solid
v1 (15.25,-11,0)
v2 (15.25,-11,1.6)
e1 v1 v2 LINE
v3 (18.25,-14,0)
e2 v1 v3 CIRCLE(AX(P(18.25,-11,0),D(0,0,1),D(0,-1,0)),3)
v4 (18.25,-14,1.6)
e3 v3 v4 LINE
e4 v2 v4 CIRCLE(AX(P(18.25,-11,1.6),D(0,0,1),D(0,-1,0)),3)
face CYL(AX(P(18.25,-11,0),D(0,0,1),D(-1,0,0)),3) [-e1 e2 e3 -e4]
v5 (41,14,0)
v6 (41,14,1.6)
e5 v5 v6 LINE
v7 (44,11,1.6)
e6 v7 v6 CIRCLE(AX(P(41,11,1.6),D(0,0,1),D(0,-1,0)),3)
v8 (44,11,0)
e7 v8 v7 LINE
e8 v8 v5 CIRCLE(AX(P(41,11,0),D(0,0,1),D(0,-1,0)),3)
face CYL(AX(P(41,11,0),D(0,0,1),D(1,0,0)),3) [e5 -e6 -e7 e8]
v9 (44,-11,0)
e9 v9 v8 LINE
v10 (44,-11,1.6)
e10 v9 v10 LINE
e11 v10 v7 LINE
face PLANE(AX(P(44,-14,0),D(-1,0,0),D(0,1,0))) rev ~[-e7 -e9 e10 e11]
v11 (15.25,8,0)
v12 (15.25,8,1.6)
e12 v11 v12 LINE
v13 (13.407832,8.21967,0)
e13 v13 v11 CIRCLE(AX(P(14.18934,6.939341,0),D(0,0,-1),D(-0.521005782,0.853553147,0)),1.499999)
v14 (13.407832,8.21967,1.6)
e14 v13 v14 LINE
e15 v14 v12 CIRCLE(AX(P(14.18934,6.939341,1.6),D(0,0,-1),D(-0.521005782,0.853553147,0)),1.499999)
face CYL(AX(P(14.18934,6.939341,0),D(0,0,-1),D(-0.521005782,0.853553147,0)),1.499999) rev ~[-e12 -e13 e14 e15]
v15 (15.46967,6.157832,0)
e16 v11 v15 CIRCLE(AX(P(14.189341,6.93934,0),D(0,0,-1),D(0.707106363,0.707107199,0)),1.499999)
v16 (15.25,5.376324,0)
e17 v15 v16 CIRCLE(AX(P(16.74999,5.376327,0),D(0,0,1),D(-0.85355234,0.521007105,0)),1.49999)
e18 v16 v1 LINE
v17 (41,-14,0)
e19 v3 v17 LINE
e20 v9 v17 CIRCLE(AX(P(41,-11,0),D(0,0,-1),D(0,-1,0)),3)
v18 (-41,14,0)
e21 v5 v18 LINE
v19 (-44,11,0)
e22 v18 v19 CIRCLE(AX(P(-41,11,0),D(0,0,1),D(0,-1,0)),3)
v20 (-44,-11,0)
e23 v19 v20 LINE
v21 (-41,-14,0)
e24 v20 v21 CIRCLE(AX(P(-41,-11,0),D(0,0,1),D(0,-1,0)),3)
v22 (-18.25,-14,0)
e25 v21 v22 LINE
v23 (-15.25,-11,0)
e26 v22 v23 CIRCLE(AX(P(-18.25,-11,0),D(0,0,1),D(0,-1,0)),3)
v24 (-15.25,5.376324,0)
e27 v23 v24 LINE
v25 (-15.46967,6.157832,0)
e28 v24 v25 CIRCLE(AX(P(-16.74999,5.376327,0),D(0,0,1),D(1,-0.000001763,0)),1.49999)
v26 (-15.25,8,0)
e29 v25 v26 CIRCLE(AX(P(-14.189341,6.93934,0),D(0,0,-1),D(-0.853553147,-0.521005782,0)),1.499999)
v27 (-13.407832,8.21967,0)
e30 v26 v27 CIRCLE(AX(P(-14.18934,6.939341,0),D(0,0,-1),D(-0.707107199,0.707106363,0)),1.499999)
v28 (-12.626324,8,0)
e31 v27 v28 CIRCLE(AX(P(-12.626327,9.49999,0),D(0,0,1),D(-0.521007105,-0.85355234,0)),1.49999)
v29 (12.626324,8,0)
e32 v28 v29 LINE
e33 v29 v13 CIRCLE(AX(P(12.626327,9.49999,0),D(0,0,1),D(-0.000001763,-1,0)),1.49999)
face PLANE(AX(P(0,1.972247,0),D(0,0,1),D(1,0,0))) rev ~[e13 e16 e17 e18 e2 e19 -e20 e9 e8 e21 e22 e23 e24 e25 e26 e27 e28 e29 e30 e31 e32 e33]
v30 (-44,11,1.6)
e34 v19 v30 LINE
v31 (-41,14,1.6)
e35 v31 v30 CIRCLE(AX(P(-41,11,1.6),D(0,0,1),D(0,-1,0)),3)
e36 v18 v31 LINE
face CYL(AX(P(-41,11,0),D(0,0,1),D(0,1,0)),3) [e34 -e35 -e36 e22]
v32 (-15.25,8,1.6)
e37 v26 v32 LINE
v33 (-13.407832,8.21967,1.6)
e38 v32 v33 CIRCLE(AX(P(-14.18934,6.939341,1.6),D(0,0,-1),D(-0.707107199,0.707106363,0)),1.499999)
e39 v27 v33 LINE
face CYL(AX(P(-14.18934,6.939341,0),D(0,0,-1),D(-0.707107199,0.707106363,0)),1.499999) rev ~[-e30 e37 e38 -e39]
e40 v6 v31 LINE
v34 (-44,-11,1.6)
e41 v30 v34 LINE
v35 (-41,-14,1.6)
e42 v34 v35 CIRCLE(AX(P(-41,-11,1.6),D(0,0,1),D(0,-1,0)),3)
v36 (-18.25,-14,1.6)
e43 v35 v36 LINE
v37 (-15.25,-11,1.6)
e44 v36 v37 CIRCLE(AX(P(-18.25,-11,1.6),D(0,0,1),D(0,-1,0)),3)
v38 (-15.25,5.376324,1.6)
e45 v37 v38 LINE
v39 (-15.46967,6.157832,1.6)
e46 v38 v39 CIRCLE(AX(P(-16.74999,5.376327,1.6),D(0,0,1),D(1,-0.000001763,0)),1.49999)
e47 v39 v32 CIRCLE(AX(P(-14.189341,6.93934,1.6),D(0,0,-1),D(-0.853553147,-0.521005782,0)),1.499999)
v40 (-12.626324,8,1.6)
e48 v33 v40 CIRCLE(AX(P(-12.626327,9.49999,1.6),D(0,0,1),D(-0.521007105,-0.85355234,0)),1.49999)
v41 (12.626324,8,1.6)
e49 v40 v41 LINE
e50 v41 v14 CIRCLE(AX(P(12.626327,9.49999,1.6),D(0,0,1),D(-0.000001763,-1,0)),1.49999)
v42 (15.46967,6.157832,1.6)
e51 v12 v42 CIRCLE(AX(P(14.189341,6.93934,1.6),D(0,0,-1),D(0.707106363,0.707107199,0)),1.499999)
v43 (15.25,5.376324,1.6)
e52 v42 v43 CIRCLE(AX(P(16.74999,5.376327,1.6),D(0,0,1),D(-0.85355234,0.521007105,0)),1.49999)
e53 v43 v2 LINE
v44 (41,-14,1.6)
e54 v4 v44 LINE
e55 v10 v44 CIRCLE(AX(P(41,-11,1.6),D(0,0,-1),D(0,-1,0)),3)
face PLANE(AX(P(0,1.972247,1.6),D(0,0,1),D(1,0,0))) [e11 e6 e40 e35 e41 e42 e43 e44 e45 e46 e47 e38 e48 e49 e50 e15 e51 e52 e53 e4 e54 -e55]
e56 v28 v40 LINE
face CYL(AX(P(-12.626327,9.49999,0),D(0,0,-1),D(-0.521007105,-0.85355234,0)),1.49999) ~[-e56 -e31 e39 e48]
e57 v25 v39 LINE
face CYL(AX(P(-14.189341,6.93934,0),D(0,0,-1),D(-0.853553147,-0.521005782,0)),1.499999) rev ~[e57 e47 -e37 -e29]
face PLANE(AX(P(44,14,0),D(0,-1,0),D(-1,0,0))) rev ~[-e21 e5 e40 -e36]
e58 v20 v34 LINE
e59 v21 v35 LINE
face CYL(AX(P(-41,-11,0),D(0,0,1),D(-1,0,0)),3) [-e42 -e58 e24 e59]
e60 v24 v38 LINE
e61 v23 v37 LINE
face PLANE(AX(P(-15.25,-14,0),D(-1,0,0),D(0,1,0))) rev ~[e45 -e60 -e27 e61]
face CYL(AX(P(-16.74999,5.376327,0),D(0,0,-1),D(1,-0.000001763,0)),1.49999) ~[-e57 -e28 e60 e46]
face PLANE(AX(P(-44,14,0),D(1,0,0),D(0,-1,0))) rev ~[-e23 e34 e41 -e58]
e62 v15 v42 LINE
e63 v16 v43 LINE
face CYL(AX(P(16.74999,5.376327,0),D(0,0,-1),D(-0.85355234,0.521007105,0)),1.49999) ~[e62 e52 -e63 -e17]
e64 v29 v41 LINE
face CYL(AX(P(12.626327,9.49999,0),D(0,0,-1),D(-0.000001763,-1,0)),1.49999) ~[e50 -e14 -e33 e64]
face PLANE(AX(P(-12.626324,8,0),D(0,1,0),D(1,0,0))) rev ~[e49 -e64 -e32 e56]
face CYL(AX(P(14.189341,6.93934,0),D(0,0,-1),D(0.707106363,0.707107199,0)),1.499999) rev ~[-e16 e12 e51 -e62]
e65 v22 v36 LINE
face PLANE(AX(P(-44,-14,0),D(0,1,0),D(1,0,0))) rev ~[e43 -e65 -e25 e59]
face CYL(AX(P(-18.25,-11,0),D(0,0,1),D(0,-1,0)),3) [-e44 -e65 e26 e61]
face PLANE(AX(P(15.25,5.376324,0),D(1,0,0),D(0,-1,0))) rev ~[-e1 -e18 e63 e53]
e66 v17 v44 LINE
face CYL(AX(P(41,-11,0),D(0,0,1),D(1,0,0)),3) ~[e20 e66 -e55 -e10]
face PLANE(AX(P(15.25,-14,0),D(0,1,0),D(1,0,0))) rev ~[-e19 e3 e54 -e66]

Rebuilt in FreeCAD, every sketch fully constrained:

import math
import FreeCAD as App
import Part
import Sketcher

V = App.Vector


def edges_at(feature, points):
    """Names of the edges that pass closest to the given points."""
    edges = feature.Shape.Edges
    near = lambda p: min(range(len(edges)), key=lambda i: edges[i].distToShape(Part.Vertex(*p))[0])
    return sorted({f"Edge{near(p) + 1}" for p in points})

doc = App.newDocument("Part")
body = doc.addObject("PartDesign::Body", "Body")

# Sketch on XY plane
sketch1 = body.newObject("Sketcher::SketchObject", "Sketch")
sketch1.AttachmentSupport = (doc.getObject("XY_Plane"), [""])
sketch1.MapMode = "FlatFace"
sketch1.addGeometry(Part.LineSegment(V(44, -14, 0), V(44, 14, 0)), False)
sketch1.addGeometry(Part.LineSegment(V(44, 14, 0), V(-44, 14, 0)), False)
sketch1.addGeometry(Part.LineSegment(V(-44, 14, 0), V(-44, -14, 0)), False)
sketch1.addGeometry(Part.LineSegment(V(-44, -14, 0), V(-15.2, -14, 0)), False)
sketch1.addGeometry(Part.LineSegment(V(-15.2, -14, 0), V(-15.2, 5.4, 0)), False)
sketch1.addGeometry(Part.ArcOfCircle(Part.Circle(V(-16.7, 5.4, 0), V(0, 0, 1), 1.5), math.radians(0), math.radians(31)), False)
sketch1.addGeometry(Part.ArcOfCircle(Part.Circle(V(-14.2, 6.9, 0), V(0, 0, 1), 1.5), math.radians(135), math.radians(211)), False)
sketch1.addGeometry(Part.ArcOfCircle(Part.Circle(V(-14.2, 6.9, 0), V(0, 0, 1), 1.5), math.radians(59), math.radians(135)), False)
sketch1.addGeometry(Part.ArcOfCircle(Part.Circle(V(-12.6, 9.5, 0), V(0, 0, 1), 1.5), math.radians(-121), math.radians(-90)), False)
sketch1.addGeometry(Part.LineSegment(V(-12.6, 8, 0), V(12.6, 8, 0)), False)
sketch1.addGeometry(Part.ArcOfCircle(Part.Circle(V(12.6, 9.5, 0), V(0, 0, 1), 1.5), math.radians(-90), math.radians(-59)), False)
sketch1.addGeometry(Part.ArcOfCircle(Part.Circle(V(14.2, 6.9, 0), V(0, 0, 1), 1.5), math.radians(45), math.radians(121)), False)
sketch1.addGeometry(Part.ArcOfCircle(Part.Circle(V(14.2, 6.9, 0), V(0, 0, 1), 1.5), math.radians(-31), math.radians(45)), False)
sketch1.addGeometry(Part.ArcOfCircle(Part.Circle(V(16.7, 5.4, 0), V(0, 0, 1), 1.5), math.radians(149), math.radians(180)), False)
sketch1.addGeometry(Part.LineSegment(V(15.2, 5.4, 0), V(15.2, -14, 0)), False)
sketch1.addGeometry(Part.LineSegment(V(15.2, -14, 0), V(44, -14, 0)), False)
sketch1.addConstraint(Sketcher.Constraint("Coincident", 0, 2, 1, 1))
sketch1.addConstraint(Sketcher.Constraint("Coincident", 1, 2, 2, 1))
sketch1.addConstraint(Sketcher.Constraint("Coincident", 2, 2, 3, 1))
sketch1.addConstraint(Sketcher.Constraint("Coincident", 3, 2, 4, 1))
sketch1.addConstraint(Sketcher.Constraint("Tangent", 4, 2, 5, 1))
sketch1.addConstraint(Sketcher.Constraint("Tangent", 5, 2, 6, 2))
sketch1.addConstraint(Sketcher.Constraint("Tangent", 6, 1, 7, 2))
sketch1.addConstraint(Sketcher.Constraint("Tangent", 7, 1, 8, 1))
sketch1.addConstraint(Sketcher.Constraint("Tangent", 8, 2, 9, 1))
sketch1.addConstraint(Sketcher.Constraint("Tangent", 9, 2, 10, 1))
sketch1.addConstraint(Sketcher.Constraint("Tangent", 10, 2, 11, 2))
sketch1.addConstraint(Sketcher.Constraint("Tangent", 11, 1, 12, 2))
sketch1.addConstraint(Sketcher.Constraint("Tangent", 12, 1, 13, 1))
sketch1.addConstraint(Sketcher.Constraint("Tangent", 13, 2, 14, 1))
sketch1.addConstraint(Sketcher.Constraint("Coincident", 14, 2, 15, 1))
sketch1.addConstraint(Sketcher.Constraint("Coincident", 15, 2, 0, 1))
sketch1.addConstraint(Sketcher.Constraint("Vertical", 0))
sketch1.addConstraint(Sketcher.Constraint("Horizontal", 1))
sketch1.addConstraint(Sketcher.Constraint("Vertical", 2))
sketch1.addConstraint(Sketcher.Constraint("Horizontal", 3))
sketch1.addConstraint(Sketcher.Constraint("Vertical", 4))
sketch1.addConstraint(Sketcher.Constraint("Horizontal", 9))
sketch1.addConstraint(Sketcher.Constraint("Vertical", 14))
sketch1.addConstraint(Sketcher.Constraint("Horizontal", 15))
sketch1.addConstraint(Sketcher.Constraint("Equal", 6, 7))
sketch1.addConstraint(Sketcher.Constraint("Equal", 5, 8))
sketch1.addConstraint(Sketcher.Constraint("Equal", 8, 10))
sketch1.addConstraint(Sketcher.Constraint("Equal", 7, 11))
sketch1.addConstraint(Sketcher.Constraint("Equal", 11, 12))
sketch1.addConstraint(Sketcher.Constraint("Equal", 10, 13))
sketch1.addConstraint(Sketcher.Constraint("Symmetric", 0, 2, 2, 2, -1, 1))
sketch1.addConstraint(Sketcher.Constraint("Symmetric", 6, 3, 11, 3, -2))
sketch1.addConstraint(Sketcher.Constraint("Symmetric", 3, 2, 14, 2, -2))
sketch1.addConstraint(Sketcher.Constraint("Horizontal", 6, 1, 8, 2))
sketch1.addConstraint(Sketcher.Constraint("Horizontal", 9, 2, 11, 1))
sketch1.addConstraint(Sketcher.Constraint("Vertical", 4, 2, 6, 1))
sketch1.addConstraint(Sketcher.Constraint("Radius", 6, 1.499999))
sketch1.addConstraint(Sketcher.Constraint("DistanceX", 1, 2, 1, 1, 88.0))
sketch1.addConstraint(Sketcher.Constraint("DistanceY", 0, 1, 0, 2, 28.0))
sketch1.addConstraint(Sketcher.Constraint("DistanceY", -1, 1, 6, 1, 8.0))
sketch1.addConstraint(Sketcher.Constraint("DistanceX", 3, 1, 3, 2, 28.75))
sketch1.addConstraint(Sketcher.Constraint("Radius", 5, 1.49999))
sketch1.addConstraint(Sketcher.Constraint("DistanceX", 9, 1, 9, 2, 25.252648))
pad1 = body.newObject("PartDesign::Pad", "Pad")
pad1.Profile = sketch1
pad1.Length = 1.6
doc.recompute()

fillet = body.newObject("PartDesign::Fillet", "Fillet")
fillet.Base = (pad1, edges_at(pad1, [
    (-15.25, -14, 0.8),
    (-44, -14, 0.8),
    (-44, 14, 0.8),
    (44, 14, 0.8),
    (44, -14, 0.8),
    (15.25, -14, 0.8),
]))
fillet.Radius = 3

doc.recompute()
